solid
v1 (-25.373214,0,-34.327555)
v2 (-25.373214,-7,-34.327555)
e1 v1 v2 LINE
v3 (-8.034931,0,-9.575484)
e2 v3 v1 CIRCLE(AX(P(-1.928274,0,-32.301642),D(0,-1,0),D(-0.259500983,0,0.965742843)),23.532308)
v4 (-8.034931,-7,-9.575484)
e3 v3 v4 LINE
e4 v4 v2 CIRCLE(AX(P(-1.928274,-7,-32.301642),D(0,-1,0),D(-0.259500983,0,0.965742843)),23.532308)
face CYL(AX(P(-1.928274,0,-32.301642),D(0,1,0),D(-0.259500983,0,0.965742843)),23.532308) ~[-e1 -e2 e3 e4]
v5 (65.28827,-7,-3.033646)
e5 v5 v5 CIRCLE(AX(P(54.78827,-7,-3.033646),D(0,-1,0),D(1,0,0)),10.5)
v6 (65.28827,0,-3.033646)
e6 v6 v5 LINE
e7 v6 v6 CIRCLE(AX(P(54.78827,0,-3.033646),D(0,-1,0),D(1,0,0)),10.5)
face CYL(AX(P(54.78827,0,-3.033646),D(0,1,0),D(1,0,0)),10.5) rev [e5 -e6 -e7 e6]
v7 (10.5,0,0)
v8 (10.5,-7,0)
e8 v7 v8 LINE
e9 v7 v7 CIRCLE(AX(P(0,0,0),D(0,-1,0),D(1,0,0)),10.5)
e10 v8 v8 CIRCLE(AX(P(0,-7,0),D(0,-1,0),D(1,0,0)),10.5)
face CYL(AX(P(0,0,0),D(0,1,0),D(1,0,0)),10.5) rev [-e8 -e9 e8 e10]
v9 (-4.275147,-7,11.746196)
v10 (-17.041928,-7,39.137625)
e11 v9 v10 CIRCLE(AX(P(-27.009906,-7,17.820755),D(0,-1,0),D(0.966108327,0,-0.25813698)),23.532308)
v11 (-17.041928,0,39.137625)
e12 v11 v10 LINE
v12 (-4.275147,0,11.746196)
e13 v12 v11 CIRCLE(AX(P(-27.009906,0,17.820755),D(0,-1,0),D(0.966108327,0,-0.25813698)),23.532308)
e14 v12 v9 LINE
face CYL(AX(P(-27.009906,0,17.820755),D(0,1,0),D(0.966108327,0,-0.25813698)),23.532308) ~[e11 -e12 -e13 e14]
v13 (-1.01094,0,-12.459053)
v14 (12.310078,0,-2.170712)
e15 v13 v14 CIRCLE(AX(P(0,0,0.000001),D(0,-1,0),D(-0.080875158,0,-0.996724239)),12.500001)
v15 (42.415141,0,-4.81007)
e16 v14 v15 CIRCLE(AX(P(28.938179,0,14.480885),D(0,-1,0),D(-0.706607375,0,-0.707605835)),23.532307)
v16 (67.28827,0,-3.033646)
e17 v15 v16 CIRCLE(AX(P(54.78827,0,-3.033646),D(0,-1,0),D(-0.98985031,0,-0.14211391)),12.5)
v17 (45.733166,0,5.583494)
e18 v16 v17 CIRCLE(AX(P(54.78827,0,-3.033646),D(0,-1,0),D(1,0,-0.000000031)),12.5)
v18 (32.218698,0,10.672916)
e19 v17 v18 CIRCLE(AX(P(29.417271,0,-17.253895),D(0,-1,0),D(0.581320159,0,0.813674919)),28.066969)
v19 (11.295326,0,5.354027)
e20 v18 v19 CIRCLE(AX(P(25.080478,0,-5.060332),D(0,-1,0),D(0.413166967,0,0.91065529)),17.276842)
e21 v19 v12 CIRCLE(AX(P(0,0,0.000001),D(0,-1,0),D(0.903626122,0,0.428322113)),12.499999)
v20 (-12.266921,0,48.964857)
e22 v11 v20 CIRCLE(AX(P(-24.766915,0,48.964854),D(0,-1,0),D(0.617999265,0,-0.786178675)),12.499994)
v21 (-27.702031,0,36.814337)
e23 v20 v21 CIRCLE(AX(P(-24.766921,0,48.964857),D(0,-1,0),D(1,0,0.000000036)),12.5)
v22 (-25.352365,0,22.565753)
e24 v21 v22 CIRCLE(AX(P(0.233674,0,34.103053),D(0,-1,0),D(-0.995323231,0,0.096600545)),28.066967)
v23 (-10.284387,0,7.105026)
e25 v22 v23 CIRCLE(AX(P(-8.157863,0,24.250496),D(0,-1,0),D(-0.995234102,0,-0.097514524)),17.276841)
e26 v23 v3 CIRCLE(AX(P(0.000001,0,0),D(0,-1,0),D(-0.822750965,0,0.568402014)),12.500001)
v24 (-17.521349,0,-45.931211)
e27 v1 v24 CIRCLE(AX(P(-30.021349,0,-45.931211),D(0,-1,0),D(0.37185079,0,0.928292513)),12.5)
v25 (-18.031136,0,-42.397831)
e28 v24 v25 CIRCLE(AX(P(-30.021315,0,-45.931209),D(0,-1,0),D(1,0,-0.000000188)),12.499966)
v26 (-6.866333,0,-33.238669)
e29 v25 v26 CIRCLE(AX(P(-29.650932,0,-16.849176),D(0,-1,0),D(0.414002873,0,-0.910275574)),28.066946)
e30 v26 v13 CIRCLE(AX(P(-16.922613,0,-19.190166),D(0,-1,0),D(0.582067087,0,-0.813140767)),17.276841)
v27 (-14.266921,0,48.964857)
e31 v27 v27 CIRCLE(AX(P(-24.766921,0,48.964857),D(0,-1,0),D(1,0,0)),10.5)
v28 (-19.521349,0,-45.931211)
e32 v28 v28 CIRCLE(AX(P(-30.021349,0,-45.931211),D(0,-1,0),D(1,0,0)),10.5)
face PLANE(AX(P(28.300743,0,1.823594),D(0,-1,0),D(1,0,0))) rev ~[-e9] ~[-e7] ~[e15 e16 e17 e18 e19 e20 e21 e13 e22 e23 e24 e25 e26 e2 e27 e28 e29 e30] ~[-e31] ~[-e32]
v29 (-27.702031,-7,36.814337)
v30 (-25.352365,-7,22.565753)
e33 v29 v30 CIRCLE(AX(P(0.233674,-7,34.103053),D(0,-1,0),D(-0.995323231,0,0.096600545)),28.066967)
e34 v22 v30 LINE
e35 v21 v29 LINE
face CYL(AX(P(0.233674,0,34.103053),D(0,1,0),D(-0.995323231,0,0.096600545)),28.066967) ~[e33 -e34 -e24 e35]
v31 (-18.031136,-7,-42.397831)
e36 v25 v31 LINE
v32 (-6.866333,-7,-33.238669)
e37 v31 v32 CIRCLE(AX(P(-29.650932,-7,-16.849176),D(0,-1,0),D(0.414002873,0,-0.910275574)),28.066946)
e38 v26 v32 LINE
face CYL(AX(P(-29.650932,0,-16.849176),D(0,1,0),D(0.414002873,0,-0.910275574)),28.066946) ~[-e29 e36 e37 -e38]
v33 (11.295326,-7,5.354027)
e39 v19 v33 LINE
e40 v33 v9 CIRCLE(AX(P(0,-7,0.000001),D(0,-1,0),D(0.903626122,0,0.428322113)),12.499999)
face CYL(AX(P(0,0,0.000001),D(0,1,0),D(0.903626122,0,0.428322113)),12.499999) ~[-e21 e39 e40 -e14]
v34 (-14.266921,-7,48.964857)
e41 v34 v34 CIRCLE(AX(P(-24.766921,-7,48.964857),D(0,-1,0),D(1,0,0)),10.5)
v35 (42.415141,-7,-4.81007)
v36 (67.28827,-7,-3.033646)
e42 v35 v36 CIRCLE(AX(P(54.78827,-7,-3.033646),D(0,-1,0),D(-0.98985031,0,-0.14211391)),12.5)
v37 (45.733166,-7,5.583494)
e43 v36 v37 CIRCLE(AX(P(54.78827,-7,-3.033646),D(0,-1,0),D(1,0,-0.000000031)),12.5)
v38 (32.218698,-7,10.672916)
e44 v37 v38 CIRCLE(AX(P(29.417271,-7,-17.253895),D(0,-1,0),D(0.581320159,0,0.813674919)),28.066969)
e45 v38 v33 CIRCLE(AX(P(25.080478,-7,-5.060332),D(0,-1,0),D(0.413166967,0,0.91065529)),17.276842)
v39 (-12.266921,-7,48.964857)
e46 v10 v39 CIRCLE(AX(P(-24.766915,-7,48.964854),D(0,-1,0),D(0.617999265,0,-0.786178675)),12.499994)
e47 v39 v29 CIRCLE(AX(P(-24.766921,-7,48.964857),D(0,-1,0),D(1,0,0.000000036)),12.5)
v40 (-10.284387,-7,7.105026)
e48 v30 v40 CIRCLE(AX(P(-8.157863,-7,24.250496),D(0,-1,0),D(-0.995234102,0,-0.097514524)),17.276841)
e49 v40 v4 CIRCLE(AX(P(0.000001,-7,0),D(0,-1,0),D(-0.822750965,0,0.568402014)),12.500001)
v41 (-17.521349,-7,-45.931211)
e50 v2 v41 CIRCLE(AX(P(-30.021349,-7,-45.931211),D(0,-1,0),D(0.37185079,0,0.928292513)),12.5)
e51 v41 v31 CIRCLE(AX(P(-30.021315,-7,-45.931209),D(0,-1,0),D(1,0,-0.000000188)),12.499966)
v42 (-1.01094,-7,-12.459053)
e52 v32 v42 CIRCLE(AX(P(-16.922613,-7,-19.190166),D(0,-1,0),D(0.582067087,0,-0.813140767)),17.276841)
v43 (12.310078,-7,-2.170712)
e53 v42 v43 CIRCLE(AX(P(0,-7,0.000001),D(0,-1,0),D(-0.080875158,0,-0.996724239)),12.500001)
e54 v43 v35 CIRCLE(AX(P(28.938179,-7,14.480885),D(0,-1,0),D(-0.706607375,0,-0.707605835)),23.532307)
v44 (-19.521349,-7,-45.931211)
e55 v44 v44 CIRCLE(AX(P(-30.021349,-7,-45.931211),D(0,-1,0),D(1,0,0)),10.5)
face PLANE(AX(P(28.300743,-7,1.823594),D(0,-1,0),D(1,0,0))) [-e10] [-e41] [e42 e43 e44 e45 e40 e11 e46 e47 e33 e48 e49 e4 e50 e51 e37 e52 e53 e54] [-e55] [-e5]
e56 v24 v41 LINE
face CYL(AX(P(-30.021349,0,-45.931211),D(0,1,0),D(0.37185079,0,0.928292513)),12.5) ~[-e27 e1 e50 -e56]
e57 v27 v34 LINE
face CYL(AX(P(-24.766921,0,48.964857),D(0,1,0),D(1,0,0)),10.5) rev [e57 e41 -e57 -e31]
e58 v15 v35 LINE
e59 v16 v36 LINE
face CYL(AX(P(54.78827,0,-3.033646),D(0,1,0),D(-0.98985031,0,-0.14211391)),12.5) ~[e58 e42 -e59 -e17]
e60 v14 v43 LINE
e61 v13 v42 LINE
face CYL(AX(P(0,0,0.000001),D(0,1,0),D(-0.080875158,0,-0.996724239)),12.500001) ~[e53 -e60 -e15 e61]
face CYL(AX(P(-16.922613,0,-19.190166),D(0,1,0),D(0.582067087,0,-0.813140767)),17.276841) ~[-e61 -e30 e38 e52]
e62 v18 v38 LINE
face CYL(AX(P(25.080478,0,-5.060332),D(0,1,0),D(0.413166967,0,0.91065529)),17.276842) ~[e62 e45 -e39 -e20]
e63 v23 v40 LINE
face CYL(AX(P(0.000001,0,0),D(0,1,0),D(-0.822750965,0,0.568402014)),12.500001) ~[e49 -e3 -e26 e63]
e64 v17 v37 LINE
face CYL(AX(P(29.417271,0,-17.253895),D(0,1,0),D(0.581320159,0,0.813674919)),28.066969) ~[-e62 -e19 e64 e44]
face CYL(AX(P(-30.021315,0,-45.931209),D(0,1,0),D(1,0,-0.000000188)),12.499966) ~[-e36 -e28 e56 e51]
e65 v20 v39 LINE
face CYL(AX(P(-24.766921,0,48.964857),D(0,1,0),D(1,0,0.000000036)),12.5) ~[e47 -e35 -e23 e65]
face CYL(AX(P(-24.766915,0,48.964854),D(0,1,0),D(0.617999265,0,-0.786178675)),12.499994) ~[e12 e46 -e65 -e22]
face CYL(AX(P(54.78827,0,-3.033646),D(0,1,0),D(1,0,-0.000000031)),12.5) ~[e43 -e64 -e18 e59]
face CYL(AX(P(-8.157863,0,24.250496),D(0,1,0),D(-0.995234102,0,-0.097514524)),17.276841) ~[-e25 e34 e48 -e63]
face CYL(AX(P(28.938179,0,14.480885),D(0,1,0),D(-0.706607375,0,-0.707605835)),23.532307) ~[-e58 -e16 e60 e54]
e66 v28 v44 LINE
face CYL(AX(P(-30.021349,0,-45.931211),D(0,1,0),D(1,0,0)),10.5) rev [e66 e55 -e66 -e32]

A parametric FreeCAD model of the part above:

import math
import FreeCAD as App
import Part
import Sketcher
from FreeCAD import Vector

doc = App.newDocument("Part")
body = doc.addObject("PartDesign::Body", "Body")

# Sketch on XZ plane
sketch1 = body.newObject("Sketcher::SketchObject", "Sketch")
sketch1.AttachmentSupport = (doc.getObject("XZ_Plane"), [""])
sketch1.MapMode = "FlatFace"
sketch1.addGeometry(Part.ArcOfCircle(Part.Circle(Vector(25.080478, -5.060332, 0), Vector(0, 0, 1), 17.276842), math.radians(65.596065), math.radians(142.929809)), False)
sketch1.addGeometry(Part.ArcOfCircle(Part.Circle(Vector(0, 0.000001, 0), Vector(0, 0, 1), 12.499999), math.radians(25.361124), math.radians(109.999491)), False)
sketch1.addGeometry(Part.ArcOfCircle(Part.Circle(Vector(-27.009906, 17.820755, 0), Vector(0, 0, 1), 23.532308), math.radians(-14.959546), math.radians(64.938747)), False)
sketch1.addGeometry(Part.ArcOfCircle(Part.Circle(Vector(-24.766915, 48.964854, 0), Vector(0, 0, 1), 12.499994), math.radians(-51.829823), math.radians(0.000014)), False)
sketch1.addGeometry(Part.ArcOfCircle(Part.Circle(Vector(-24.766921, 48.964857, 0), Vector(0, 0, 1), 12.5), math.radians(0.000002), math.radians(256.419647)), False)
sketch1.addGeometry(Part.ArcOfCircle(Part.Circle(Vector(0.233674, 34.103053, 0), Vector(0, 0, 1), 28.066967), math.radians(174.456552), math.radians(204.271646)), False)
sketch1.addGeometry(Part.ArcOfCircle(Part.Circle(Vector(-8.157863, 24.250496, 0), Vector(0, 0, 1), 17.276841), math.radians(-174.403936), math.radians(-97.070192)), False)
sketch1.addGeometry(Part.ArcOfCircle(Part.Circle(Vector(0.000001, 0, 0), Vector(0, 0, 1), 12.500001), math.radians(145.361132), math.radians(229.999484)), False)
sketch1.addGeometry(Part.ArcOfCircle(Part.Circle(Vector(-1.928274, -32.301642, 0), Vector(0, 0, 1), 23.532308), math.radians(105.040454), math.radians(184.938746)), False)
sketch1.addGeometry(Part.ArcOfCircle(Part.Circle(Vector(-30.021349, -45.931211, 0), Vector(0, 0, 1), 12.5), math.radians(68.170194), math.radians(360.000001)), False)
sketch1.addGeometry(Part.ArcOfCircle(Part.Circle(Vector(-30.021315, -45.931209, 0), Vector(0, 0, 1), 12.499966), math.radians(-0.000011), math.radians(16.419682)), False)
sketch1.addGeometry(Part.ArcOfCircle(Part.Circle(Vector(-29.650932, -16.849176, 0), Vector(0, 0, 1), 28.066946), math.radians(-65.543462), math.radians(-35.728345)), False)
sketch1.addGeometry(Part.ArcOfCircle(Part.Circle(Vector(-16.922613, -19.190166, 0), Vector(0, 0, 1), 17.276841), math.radians(-54.403938), math.radians(22.929812)), False)
sketch1.addGeometry(Part.ArcOfCircle(Part.Circle(Vector(0, 0.000001, 0), Vector(0, 0, 1), 12.500001), math.radians(-94.638872), math.radians(-10.000515)), False)
sketch1.addGeometry(Part.ArcOfCircle(Part.Circle(Vector(28.938179, 14.480885, 0), Vector(0, 0, 1), 23.532307), math.radians(-134.959548), math.radians(-55.061251)), False)
sketch1.addGeometry(Part.ArcOfCircle(Part.Circle(Vector(54.78827, -3.033646, 0), Vector(0, 0, 1), 12.5), math.radians(-171.829812), math.radians(0.000001)), False)
sketch1.addGeometry(Part.ArcOfCircle(Part.Circle(Vector(54.78827, -3.033646, 0), Vector(0, 0, 1), 12.5), math.radians(-0.000002), math.radians(136.419648)), False)
sketch1.addGeometry(Part.ArcOfCircle(Part.Circle(Vector(29.417271, -17.253895, 0), Vector(0, 0, 1), 28.066969), math.radians(54.456551), math.radians(84.271642)), False)
sketch1.addGeometry(Part.Circle(Vector(-30.021349, -45.931211, 0), Vector(0, 0, 1), 10.5), False)
sketch1.addGeometry(Part.Circle(Vector(0, 0, 0), Vector(0, 0, 1), 10.5), False)
sketch1.addGeometry(Part.Circle(Vector(54.78827, -3.033646, 0), Vector(0, 0, 1), 10.5), False)
sketch1.addGeometry(Part.Circle(Vector(-24.766921, 48.964857, 0), Vector(0, 0, 1), 10.5), False)
sketch1.addConstraint(Sketcher.Constraint("Coincident", 0, 2, 1, 1))
sketch1.addConstraint(Sketcher.Constraint("Coincident", 1, 2, 2, 1))
sketch1.addConstraint(Sketcher.Constraint("Coincident", 2, 2, 3, 1))
sketch1.addConstraint(Sketcher.Constraint("Coincident", 3, 2, 4, 1))
sketch1.addConstraint(Sketcher.Constraint("Coincident", 4, 2, 5, 1))
sketch1.addConstraint(Sketcher.Constraint("Coincident", 5, 2, 6, 1))
sketch1.addConstraint(Sketcher.Constraint("Coincident", 6, 2, 7, 1))
sketch1.addConstraint(Sketcher.Constraint("Coincident", 7, 2, 8, 1))
sketch1.addConstraint(Sketcher.Constraint("Coincident", 8, 2, 9, 1))
sketch1.addConstraint(Sketcher.Constraint("Coincident", 9, 2, 10, 1))
sketch1.addConstraint(Sketcher.Constraint("Coincident", 10, 2, 11, 1))
sketch1.addConstraint(Sketcher.Constraint("Coincident", 11, 2, 12, 1))
sketch1.addConstraint(Sketcher.Constraint("Coincident", 12, 2, 13, 1))
sketch1.addConstraint(Sketcher.Constraint("Coincident", 13, 2, 14, 1))
sketch1.addConstraint(Sketcher.Constraint("Coincident", 14, 2, 15, 1))
sketch1.addConstraint(Sketcher.Constraint("Coincident", 15, 2, 16, 1))
sketch1.addConstraint(Sketcher.Constraint("Coincident", 16, 2, 17, 1))
sketch1.addConstraint(Sketcher.Constraint("Coincident", 17, 2, 0, 1))
sketch1.addConstraint(Sketcher.Constraint("Coincident", 1, 3, -1, 1))
sketch1.addConstraint(Sketcher.Constraint("Coincident", 7, 3, -1, 1))
sketch1.addConstraint(Sketcher.Constraint("Coincident", 13, 3, -1, 1))
sketch1.addConstraint(Sketcher.Constraint("Coincident", 19, 3, -1, 1))
sketch1.addConstraint(Sketcher.Constraint("Coincident", 4, 3, 3, 3))
sketch1.addConstraint(Sketcher.Constraint("Coincident", 16, 3, 15, 3))
sketch1.addConstraint(Sketcher.Constraint("Coincident", 18, 3, 9, 3))
sketch1.addConstraint(Sketcher.Constraint("Coincident", 20, 3, 15, 3))
sketch1.addConstraint(Sketcher.Constraint("Coincident", 21, 3, 3, 3))
sketch1.addConstraint(Sketcher.Constraint("Diameter", 18, 21.0))
sketch1.addConstraint(Sketcher.Constraint("Diameter", 19, 21.0))
sketch1.addConstraint(Sketcher.Constraint("Diameter", 20, 21.0))
sketch1.addConstraint(Sketcher.Constraint("Diameter", 21, 21.0))
sketch1.addConstraint(Sketcher.Constraint("Radius", 1, 12.499999))
sketch1.addConstraint(Sketcher.Constraint("Radius", 4, 12.5))
sketch1.addConstraint(Sketcher.Constraint("Radius", 7, 12.500001))
sketch1.addConstraint(Sketcher.Constraint("Radius", 9, 12.5))
sketch1.addConstraint(Sketcher.Constraint("Radius", 13, 12.500001))
sketch1.addConstraint(Sketcher.Constraint("Radius", 15, 12.5))
sketch1.addConstraint(Sketcher.Constraint("Radius", 0, 17.276842))
sketch1.addConstraint(Sketcher.Constraint("Radius", 2, 23.532308))
sketch1.addConstraint(Sketcher.Constraint("Radius", 6, 17.276841))
sketch1.addConstraint(Sketcher.Constraint("Radius", 8, 23.532308))
sketch1.addConstraint(Sketcher.Constraint("Radius", 12, 17.276841))
sketch1.addConstraint(Sketcher.Constraint("Radius", 17, 28.066969))
sketch1.addConstraint(Sketcher.Constraint("Radius", 5, 28.066967))
sketch1.addConstraint(Sketcher.Constraint("Radius", 10, 12.499966))
sketch1.addConstraint(Sketcher.Constraint("Radius", 11, 28.066946))
sketch1.addConstraint(Sketcher.Constraint("Radius", 14, 23.532307))
sketch1.addConstraint(Sketcher.Constraint("DistanceX", 17, 3, 15, 3, 25.370999))
sketch1.addConstraint(Sketcher.Constraint("DistanceY", 2, 3, 5, 2, 4.744998))
sketch1.addConstraint(Sketcher.Constraint("DistanceY", 2, 3, 3, 3, 31.144099))
sketch1.addConstraint(Sketcher.Constraint("DistanceX", 4, 3, 0, 3, 49.847398))
sketch1.addConstraint(Sketcher.Constraint("DistanceY", 5, 3, 3, 3, 14.861801))
sketch1.addConstraint(Sketcher.Constraint("DistanceX", 10, 3, 12, 3, 13.098702))
sketch1.addConstraint(Sketcher.Constraint("DistanceX", 0, 3, 14, 3, 3.857702))
sketch1.addConstraint(Sketcher.Constraint("DistanceY", 1, 2, 6, 3, 12.5043))
sketch1.addConstraint(Sketcher.Constraint("DistanceX", 2, 2, 5, 3, 17.275602))
sketch1.addConstraint(Sketcher.Constraint("DistanceX", 5, 2, 6, 3, 17.194502))
sketch1.addConstraint(Sketcher.Constraint("DistanceX", 10, 3, 8, 2, 4.648101))
sketch1.addConstraint(Sketcher.Constraint("DistanceY", 0, 3, -1, 1, 5.060332))
sketch1.addConstraint(Sketcher.Constraint("DistanceX", 4, 3, -1, 1, 24.766921))
sketch1.addConstraint(Sketcher.Constraint("DistanceX", 9, 3, -1, 1, 30.021349))
sketch1.addConstraint(Sketcher.Constraint("DistanceY", 9, 3, -1, 1, 45.931211))
sketch1.addConstraint(Sketcher.Constraint("DistanceY", 10, 3, -1, 1, 45.931209))
sketch1.addConstraint(Sketcher.Constraint("DistanceX", -1, 1, 15, 3, 54.78827))
sketch1.addConstraint(Sketcher.Constraint("DistanceX", 4, 2, -1, 1, 27.702031))
sketch1.addConstraint(Sketcher.Constraint("DistanceX", 7, 2, -1, 1, 8.034931))
sketch1.addConstraint(Sketcher.Constraint("DistanceY", 9, 2, -1, 1, 45.931211))
sketch1.addConstraint(Sketcher.Constraint("DistanceY", 10, 2, -1, 1, 42.397831))
sketch1.addConstraint(Sketcher.Constraint("DistanceY", 11, 2, -1, 1, 33.238669))
sketch1.addConstraint(Sketcher.Constraint("DistanceX", 12, 2, -1, 1, 1.01094))
sketch1.addConstraint(Sketcher.Constraint("DistanceY", 13, 2, -1, 1, 2.170712))
sketch1.addConstraint(Sketcher.Constraint("DistanceX", -1, 1, 14, 2, 42.415141))
sketch1.addConstraint(Sketcher.Constraint("DistanceY", 17, 3, 15, 3, 14.220249))
sketch1.addConstraint(Sketcher.Constraint("DistanceY", 2, 2, 3, 2, 9.827232))
sketch1.addConstraint(Sketcher.Constraint("DistanceY", 17, 3, 15, 2, 14.220249))
pad1 = body.newObject("PartDesign::Pad", "Pad")
pad1.Profile = sketch1
pad1.Length = 7

doc.recompute()
